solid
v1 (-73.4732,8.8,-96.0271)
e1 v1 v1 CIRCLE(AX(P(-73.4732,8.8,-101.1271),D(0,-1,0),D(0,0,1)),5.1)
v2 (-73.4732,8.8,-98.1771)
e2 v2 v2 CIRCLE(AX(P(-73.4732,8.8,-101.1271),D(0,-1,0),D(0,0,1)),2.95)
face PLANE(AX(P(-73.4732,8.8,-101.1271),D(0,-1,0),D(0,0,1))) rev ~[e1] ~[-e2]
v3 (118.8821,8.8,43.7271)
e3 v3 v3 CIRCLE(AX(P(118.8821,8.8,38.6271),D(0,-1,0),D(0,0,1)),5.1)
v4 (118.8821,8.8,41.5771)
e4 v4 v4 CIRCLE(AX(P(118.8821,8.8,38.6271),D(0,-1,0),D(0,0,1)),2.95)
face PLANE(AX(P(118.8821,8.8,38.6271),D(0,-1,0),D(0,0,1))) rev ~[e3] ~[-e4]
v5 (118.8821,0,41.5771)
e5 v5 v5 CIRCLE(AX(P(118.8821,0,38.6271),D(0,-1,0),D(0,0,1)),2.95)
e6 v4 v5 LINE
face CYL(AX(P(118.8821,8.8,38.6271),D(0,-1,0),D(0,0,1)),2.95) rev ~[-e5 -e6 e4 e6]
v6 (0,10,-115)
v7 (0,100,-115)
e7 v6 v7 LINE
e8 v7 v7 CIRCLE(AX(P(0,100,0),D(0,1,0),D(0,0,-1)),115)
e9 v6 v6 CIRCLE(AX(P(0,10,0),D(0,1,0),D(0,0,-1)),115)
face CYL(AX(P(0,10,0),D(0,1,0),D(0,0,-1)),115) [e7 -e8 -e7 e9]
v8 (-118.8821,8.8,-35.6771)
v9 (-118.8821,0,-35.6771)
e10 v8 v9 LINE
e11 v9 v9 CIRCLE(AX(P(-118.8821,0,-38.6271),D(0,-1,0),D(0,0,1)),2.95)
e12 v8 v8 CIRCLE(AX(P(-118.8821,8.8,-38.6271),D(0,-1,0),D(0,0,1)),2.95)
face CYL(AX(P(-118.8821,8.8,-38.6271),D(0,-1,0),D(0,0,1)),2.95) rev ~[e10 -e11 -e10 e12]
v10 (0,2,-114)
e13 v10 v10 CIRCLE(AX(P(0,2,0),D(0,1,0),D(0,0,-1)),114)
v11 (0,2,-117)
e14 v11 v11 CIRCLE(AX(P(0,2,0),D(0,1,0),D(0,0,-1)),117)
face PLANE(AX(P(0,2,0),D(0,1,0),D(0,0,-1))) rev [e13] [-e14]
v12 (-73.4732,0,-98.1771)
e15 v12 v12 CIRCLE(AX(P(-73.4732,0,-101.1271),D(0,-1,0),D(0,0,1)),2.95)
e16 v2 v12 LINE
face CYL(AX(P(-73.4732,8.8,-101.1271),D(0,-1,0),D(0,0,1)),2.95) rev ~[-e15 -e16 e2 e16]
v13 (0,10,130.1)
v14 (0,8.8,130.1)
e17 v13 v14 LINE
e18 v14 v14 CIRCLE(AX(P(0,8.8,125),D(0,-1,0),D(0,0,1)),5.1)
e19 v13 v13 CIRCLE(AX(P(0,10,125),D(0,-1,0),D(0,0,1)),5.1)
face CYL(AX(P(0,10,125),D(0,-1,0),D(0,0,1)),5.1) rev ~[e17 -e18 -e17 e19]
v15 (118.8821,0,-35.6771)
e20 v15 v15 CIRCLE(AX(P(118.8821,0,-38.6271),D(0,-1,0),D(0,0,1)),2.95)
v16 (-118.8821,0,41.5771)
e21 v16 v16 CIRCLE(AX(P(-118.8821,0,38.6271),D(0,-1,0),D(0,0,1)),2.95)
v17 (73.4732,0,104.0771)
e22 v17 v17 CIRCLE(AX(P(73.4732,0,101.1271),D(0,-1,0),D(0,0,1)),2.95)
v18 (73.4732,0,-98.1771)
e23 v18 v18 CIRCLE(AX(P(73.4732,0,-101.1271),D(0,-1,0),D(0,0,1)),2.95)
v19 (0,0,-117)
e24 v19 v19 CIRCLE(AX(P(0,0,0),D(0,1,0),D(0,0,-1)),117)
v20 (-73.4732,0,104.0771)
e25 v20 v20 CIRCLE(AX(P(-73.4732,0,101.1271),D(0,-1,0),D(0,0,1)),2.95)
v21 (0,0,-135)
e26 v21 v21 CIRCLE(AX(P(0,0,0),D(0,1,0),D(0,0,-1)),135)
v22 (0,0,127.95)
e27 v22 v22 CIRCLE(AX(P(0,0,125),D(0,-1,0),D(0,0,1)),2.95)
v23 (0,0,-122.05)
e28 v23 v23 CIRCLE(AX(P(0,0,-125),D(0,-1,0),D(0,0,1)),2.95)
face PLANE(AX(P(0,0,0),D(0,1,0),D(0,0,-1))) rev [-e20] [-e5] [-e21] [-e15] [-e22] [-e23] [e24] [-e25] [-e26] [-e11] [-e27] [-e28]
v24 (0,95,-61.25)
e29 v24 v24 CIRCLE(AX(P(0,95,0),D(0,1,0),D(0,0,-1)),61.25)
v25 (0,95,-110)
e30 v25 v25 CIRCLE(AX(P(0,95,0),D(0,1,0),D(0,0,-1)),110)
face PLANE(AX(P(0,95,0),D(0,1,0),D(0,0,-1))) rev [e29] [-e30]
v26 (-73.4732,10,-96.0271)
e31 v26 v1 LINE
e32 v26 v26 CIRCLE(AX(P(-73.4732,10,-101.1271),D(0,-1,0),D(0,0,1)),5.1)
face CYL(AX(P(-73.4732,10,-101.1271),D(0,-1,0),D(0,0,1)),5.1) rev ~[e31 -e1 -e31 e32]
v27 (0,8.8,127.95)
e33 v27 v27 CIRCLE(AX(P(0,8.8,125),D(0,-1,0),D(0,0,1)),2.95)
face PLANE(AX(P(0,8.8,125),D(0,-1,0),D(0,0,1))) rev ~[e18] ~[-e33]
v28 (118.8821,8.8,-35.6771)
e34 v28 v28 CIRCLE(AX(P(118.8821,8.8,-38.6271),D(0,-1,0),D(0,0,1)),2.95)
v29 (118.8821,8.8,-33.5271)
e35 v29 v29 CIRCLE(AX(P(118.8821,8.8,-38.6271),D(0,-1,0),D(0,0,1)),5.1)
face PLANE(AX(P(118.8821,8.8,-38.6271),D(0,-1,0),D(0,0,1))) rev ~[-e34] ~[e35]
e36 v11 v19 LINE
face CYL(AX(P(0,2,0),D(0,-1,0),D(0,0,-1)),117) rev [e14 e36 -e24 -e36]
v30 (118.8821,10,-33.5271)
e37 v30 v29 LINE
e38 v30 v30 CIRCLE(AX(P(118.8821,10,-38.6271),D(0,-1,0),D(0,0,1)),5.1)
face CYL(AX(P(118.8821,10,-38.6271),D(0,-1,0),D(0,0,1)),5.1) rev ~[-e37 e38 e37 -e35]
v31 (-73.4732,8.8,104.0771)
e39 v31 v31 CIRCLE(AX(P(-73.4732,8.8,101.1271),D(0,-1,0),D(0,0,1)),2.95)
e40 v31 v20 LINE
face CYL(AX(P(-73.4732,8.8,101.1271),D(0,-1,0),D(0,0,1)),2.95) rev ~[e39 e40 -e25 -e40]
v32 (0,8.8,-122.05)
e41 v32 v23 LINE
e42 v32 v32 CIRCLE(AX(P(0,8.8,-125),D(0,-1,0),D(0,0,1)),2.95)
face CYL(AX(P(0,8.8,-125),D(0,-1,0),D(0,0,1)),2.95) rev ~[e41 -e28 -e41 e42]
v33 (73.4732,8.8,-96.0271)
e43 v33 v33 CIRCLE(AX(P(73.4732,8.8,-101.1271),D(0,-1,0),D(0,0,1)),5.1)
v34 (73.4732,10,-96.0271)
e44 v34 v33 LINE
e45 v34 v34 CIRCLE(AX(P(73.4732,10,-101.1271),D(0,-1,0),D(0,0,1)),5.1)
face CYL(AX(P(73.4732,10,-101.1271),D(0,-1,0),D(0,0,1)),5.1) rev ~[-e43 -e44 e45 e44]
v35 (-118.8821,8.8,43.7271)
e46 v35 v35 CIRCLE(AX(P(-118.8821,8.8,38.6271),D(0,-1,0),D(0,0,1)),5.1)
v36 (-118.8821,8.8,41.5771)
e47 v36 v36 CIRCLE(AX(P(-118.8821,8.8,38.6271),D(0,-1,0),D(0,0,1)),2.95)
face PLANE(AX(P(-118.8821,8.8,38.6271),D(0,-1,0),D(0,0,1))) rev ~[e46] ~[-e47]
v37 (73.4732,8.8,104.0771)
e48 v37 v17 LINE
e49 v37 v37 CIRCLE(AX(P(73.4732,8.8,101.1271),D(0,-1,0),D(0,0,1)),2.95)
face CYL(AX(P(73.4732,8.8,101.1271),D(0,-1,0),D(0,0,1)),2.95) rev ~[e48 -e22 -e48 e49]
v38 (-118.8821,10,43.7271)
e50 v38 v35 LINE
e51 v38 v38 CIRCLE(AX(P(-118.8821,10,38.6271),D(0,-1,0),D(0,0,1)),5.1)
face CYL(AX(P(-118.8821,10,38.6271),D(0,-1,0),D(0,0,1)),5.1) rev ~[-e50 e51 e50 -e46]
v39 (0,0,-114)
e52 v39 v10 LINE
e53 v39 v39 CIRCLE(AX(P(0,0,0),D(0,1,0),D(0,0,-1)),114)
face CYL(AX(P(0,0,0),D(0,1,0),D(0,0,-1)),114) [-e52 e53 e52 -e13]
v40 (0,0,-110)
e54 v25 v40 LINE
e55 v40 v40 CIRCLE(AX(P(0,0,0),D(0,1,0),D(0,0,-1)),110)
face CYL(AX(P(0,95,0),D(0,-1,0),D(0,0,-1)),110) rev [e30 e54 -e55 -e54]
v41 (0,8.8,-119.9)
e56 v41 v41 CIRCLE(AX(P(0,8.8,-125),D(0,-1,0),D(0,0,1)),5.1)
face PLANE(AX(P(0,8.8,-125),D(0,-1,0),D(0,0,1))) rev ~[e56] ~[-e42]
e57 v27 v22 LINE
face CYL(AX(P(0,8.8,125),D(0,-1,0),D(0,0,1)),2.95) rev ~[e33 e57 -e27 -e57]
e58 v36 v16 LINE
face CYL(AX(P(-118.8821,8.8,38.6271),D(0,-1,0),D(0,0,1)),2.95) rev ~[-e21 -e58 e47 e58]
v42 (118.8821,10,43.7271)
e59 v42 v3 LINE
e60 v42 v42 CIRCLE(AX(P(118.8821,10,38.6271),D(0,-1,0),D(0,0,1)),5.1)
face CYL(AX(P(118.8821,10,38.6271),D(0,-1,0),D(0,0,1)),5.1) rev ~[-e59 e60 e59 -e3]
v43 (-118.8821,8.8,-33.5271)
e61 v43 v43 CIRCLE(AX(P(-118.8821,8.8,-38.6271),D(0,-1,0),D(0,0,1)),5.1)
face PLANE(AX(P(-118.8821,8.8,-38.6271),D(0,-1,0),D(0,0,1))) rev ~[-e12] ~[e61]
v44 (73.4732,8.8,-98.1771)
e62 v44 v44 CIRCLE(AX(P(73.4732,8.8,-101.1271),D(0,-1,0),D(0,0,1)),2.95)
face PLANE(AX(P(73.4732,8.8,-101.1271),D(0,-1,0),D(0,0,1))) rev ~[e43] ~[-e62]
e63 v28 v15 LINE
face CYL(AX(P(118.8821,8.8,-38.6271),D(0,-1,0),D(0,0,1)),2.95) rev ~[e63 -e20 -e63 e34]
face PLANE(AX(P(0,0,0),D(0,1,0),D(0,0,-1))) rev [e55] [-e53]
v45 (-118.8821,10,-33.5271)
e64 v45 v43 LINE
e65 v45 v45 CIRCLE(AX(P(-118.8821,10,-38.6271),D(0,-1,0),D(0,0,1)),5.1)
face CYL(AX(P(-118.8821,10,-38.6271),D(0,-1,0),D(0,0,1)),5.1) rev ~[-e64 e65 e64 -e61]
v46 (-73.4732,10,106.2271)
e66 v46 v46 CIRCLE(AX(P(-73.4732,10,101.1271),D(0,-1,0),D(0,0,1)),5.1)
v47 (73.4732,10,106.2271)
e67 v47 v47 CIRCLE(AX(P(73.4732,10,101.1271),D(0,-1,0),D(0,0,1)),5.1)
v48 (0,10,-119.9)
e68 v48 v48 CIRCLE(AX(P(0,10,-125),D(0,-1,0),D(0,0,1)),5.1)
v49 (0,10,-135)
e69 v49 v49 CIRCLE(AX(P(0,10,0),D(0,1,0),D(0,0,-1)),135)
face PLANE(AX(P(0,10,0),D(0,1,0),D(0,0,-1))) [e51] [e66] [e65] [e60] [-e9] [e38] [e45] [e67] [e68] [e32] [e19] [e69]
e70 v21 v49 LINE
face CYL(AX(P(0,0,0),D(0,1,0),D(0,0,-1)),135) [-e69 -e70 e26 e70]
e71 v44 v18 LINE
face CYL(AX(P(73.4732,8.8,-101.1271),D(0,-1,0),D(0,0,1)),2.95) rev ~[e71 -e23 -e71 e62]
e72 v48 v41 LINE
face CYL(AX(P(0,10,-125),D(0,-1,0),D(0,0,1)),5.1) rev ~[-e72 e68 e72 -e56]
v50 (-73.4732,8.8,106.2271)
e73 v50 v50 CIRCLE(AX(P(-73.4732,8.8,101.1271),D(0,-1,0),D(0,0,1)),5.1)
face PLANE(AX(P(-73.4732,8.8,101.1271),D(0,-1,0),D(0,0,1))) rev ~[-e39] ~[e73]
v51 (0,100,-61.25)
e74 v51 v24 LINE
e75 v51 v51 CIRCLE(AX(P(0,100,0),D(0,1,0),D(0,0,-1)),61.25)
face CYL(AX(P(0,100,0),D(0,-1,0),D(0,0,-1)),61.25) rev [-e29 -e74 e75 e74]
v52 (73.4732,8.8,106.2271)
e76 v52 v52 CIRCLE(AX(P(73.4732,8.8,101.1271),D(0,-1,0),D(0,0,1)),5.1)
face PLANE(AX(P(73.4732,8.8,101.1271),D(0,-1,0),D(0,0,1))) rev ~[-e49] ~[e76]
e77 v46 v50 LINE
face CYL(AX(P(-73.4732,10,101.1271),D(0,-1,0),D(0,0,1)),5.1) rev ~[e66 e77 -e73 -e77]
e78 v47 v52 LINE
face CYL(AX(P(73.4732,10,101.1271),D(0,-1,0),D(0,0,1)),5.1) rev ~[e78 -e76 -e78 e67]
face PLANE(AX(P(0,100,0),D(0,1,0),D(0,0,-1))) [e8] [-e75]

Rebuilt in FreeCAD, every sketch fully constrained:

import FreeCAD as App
import Part
import Sketcher


def add_polygon(sketch, points):
    """Adds a closed chain of lines whose ends are joined by coincident constraints."""
    first, n = sketch.GeometryCount, len(points)
    for a, b in zip(points, points[1:] + points[:1]):
        sketch.addGeometry(Part.LineSegment(App.Vector(*a, 0), App.Vector(*b, 0)), False)
    for i in range(n):
        sketch.addConstraint(Sketcher.Constraint("Coincident", first + i, 2, first + (i + 1) % n, 1))

doc = App.newDocument("Part")
body = doc.addObject("PartDesign::Body", "Body")

sketch1 = body.newObject("Sketcher::SketchObject", "Sketch")
sketch1.AttachmentSupport = (doc.getObject("YZ_Plane"), [""])
sketch1.MapMode = "FlatFace"
add_polygon(sketch1, [(100, -115), (100, -61.2), (95, -61.2), (95, -110), (0, -110), (0, -114), (2, -114), (2, -117), (0, -117), (0, -135), (10, -135), (10, -115)])
sketch1.addConstraint(Sketcher.Constraint("Vertical", 0))
sketch1.addConstraint(Sketcher.Constraint("Horizontal", 1))
sketch1.addConstraint(Sketcher.Constraint("Vertical", 2))
sketch1.addConstraint(Sketcher.Constraint("Horizontal", 3))
sketch1.addConstraint(Sketcher.Constraint("Vertical", 4))
sketch1.addConstraint(Sketcher.Constraint("Horizontal", 5))
sketch1.addConstraint(Sketcher.Constraint("Vertical", 6))
sketch1.addConstraint(Sketcher.Constraint("Horizontal", 7))
sketch1.addConstraint(Sketcher.Constraint("Vertical", 8))
sketch1.addConstraint(Sketcher.Constraint("Horizontal", 9))
sketch1.addConstraint(Sketcher.Constraint("Vertical", 10))
sketch1.addConstraint(Sketcher.Constraint("Horizontal", 11))
sketch1.addConstraint(Sketcher.Constraint("PointOnObject", 3, 2, -2))
sketch1.addConstraint(Sketcher.Constraint("PointOnObject", 7, 2, -2))
sketch1.addConstraint(Sketcher.Constraint("DistanceX", 1, 2, 1, 1, 5.0))
sketch1.addConstraint(Sketcher.Constraint("DistanceX", 5, 1, 5, 2, 2.0))
sketch1.addConstraint(Sketcher.Constraint("DistanceX", 9, 1, 9, 2, 10.0))
sketch1.addConstraint(Sketcher.Constraint("DistanceY", 6, 2, 6, 1, 3.0))
sketch1.addConstraint(Sketcher.Constraint("DistanceX", -1, 1, 0, 2, 100.0))
sketch1.addConstraint(Sketcher.Constraint("DistanceY", 6, 2, 10, 2, 2.0))
sketch1.addConstraint(Sketcher.Constraint("DistanceY", 10, 2, 3, 2, 5.0))
sketch1.addConstraint(Sketcher.Constraint("DistanceY", 8, 2, 8, 1, 18.0))
sketch1.addConstraint(Sketcher.Constraint("DistanceY", 2, 2, -1, 1, 110.0))
sketch1.addConstraint(Sketcher.Constraint("DistanceY", 0, 1, 0, 2, 53.75))
revolution = body.newObject("PartDesign::Revolution", "Revolution")
revolution.Profile = sketch1
revolution.ReferenceAxis = (sketch1, ["H_Axis"])
revolution.Angle = 360

sketch2 = body.newObject("Sketcher::SketchObject", "Sketch001")
sketch2.AttachmentSupport = (doc.getObject("XZ_Plane"), [""])
sketch2.MapMode = "FlatFace"
sketch2.AttachmentOffset = App.Placement(App.Vector(0, 0, -10), App.Rotation())
sketch2.addGeometry(Part.Circle(App.Vector(0, -125, 0), App.Vector(0, 0, 1), 3), False)
sketch2.addGeometry(Part.Circle(App.Vector(-73.5, -101.1, 0), App.Vector(0, 0, 1), 3), False)
sketch2.addGeometry(Part.Circle(App.Vector(-118.9, -38.6, 0), App.Vector(0, 0, 1), 3), False)
sketch2.addGeometry(Part.Circle(App.Vector(-118.9, 38.6, 0), App.Vector(0, 0, 1), 3), False)
sketch2.addGeometry(Part.Circle(App.Vector(-73.5, 101.1, 0), App.Vector(0, 0, 1), 3), False)
sketch2.addGeometry(Part.Circle(App.Vector(0, 125, 0), App.Vector(0, 0, 1), 3), False)
sketch2.addGeometry(Part.Circle(App.Vector(73.5, 101.1, 0), App.Vector(0, 0, 1), 3), False)
sketch2.addGeometry(Part.Circle(App.Vector(118.9, 38.6, 0), App.Vector(0, 0, 1), 3), False)
sketch2.addGeometry(Part.Circle(App.Vector(118.9, -38.6, 0), App.Vector(0, 0, 1), 3), False)
sketch2.addGeometry(Part.Circle(App.Vector(73.5, -101.1, 0), App.Vector(0, 0, 1), 3), False)
sketch2.addConstraint(Sketcher.Constraint("Equal", 0, 1))
sketch2.addConstraint(Sketcher.Constraint("Equal", 1, 2))
sketch2.addConstraint(Sketcher.Constraint("Equal", 2, 3))
sketch2.addConstraint(Sketcher.Constraint("Equal", 3, 4))
sketch2.addConstraint(Sketcher.Constraint("Equal", 4, 5))
sketch2.addConstraint(Sketcher.Constraint("Equal", 5, 6))
sketch2.addConstraint(Sketcher.Constraint("Equal", 6, 7))
sketch2.addConstraint(Sketcher.Constraint("Equal", 7, 8))
sketch2.addConstraint(Sketcher.Constraint("Equal", 8, 9))
sketch2.addConstraint(Sketcher.Constraint("Symmetric", 0, 3, 5, 3, -1, 1))
sketch2.addConstraint(Sketcher.Constraint("Symmetric", 1, 3, 6, 3, -1, 1))
sketch2.addConstraint(Sketcher.Constraint("Symmetric", 2, 3, 7, 3, -1, 1))
sketch2.addConstraint(Sketcher.Constraint("Symmetric", 3, 3, 8, 3, -1, 1))
sketch2.addConstraint(Sketcher.Constraint("Symmetric", 4, 3, 9, 3, -1, 1))
sketch2.addConstraint(Sketcher.Constraint("Symmetric", 4, 3, 6, 3, -2))
sketch2.addConstraint(Sketcher.Constraint("Symmetric", 3, 3, 7, 3, -2))
sketch2.addConstraint(Sketcher.Constraint("PointOnObject", 0, 3, -2))
sketch2.addConstraint(Sketcher.Constraint("Diameter", 0, 5.9))
sketch2.addConstraint(Sketcher.Constraint("DistanceY", 0, 3, -1, 1, 125.0))
sketch2.addConstraint(Sketcher.Constraint("DistanceY", 1, 3, 2, 3, 62.5))
sketch2.addConstraint(Sketcher.Constraint("DistanceY", 1, 3, -1, 1, 101.127))
sketch2.addConstraint(Sketcher.Constraint("DistanceX", 2, 3, -1, 1, 118.882))
sketch2.addConstraint(Sketcher.Constraint("DistanceX", 2, 3, 1, 3, 45.409))
doc.recompute()
hole = body.newObject("PartDesign::Hole", "Hole")
hole.Profile = sketch2
hole.ThreadType = "None"
hole.Diameter = 5.9
hole.DepthType = "ThroughAll"
hole.HoleCutType = "Counterbore"
hole.HoleCutDiameter = 10.2
hole.HoleCutDepth = 1.2
hole.Reversed = True

doc.recompute()
